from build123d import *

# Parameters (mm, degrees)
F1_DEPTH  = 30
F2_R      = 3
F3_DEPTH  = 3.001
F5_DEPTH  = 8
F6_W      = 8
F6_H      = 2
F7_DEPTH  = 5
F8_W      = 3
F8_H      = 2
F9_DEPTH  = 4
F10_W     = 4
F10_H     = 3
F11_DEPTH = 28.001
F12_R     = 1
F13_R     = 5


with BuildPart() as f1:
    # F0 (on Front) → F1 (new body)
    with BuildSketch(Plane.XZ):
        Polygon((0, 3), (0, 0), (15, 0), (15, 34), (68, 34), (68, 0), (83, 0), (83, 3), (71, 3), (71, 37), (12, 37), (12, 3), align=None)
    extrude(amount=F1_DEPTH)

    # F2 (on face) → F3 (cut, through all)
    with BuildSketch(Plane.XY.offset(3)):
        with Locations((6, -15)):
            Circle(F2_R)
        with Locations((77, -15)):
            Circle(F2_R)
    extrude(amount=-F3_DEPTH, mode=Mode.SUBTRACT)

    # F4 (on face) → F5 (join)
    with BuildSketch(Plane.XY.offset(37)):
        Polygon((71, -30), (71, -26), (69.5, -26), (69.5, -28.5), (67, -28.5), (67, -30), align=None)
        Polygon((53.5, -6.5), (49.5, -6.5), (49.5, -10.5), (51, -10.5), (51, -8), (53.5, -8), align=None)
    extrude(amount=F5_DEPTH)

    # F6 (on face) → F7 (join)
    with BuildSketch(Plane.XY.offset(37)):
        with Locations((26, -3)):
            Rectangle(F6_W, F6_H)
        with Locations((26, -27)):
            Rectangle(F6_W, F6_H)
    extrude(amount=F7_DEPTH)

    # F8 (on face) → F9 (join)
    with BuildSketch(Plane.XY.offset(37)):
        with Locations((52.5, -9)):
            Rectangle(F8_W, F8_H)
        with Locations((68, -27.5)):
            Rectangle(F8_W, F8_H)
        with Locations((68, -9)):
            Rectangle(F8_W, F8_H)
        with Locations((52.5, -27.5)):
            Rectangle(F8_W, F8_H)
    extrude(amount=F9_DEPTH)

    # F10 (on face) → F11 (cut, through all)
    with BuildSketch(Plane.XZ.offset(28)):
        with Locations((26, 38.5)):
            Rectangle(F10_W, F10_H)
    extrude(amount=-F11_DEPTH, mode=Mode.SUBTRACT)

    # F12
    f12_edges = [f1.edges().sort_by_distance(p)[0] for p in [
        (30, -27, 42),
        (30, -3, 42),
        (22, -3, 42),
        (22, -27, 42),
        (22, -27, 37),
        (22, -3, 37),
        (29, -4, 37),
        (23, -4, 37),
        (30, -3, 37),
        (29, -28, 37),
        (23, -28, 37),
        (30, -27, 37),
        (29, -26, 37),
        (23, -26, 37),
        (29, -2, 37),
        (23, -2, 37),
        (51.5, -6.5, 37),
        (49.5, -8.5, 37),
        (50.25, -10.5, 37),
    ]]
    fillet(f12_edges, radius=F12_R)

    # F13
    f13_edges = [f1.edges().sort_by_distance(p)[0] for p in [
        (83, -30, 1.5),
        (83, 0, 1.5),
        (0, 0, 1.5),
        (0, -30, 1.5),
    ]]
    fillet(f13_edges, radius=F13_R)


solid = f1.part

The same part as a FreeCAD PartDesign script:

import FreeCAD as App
import Part
import Sketcher

V = App.Vector


def edges_at(feature, points):
    """Names of the edges that pass closest to the given points."""
    edges = feature.Shape.Edges
    near = lambda p: min(range(len(edges)), key=lambda i: edges[i].distToShape(Part.Vertex(*p))[0])
    return sorted({f"Edge{near(p) + 1}" for p in points})


def add_polygon(sketch, points):
    """Adds a closed chain of lines whose ends are joined by coincident constraints."""
    first, n = sketch.GeometryCount, len(points)
    for a, b in zip(points, points[1:] + points[:1]):
        sketch.addGeometry(Part.LineSegment(App.Vector(*a, 0), App.Vector(*b, 0)), False)
    for i in range(n):
        sketch.addConstraint(Sketcher.Constraint("Coincident", first + i, 2, first + (i + 1) % n, 1))

doc = App.newDocument("Part")
body = doc.addObject("PartDesign::Body", "Body")

sketch1 = body.newObject("Sketcher::SketchObject", "Sketch")
sketch1.AttachmentSupport = (doc.getObject("XZ_Plane"), [""])
sketch1.MapMode = "FlatFace"
add_polygon(sketch1, [(0, 3), (0, 0), (15, 0), (15, 34), (68, 34), (68, 0), (83, 0), (83, 3), (71, 3), (71, 37), (12, 37), (12, 3)])
sketch1.addConstraint(Sketcher.Constraint("Vertical", 0))
sketch1.addConstraint(Sketcher.Constraint("Horizontal", 1))
sketch1.addConstraint(Sketcher.Constraint("Vertical", 2))
sketch1.addConstraint(Sketcher.Constraint("Horizontal", 3))
sketch1.addConstraint(Sketcher.Constraint("Vertical", 4))
sketch1.addConstraint(Sketcher.Constraint("Horizontal", 5))
sketch1.addConstraint(Sketcher.Constraint("Vertical", 6))
sketch1.addConstraint(Sketcher.Constraint("Horizontal", 7))
sketch1.addConstraint(Sketcher.Constraint("Vertical", 8))
sketch1.addConstraint(Sketcher.Constraint("Horizontal", 9))
sketch1.addConstraint(Sketcher.Constraint("Vertical", 10))
sketch1.addConstraint(Sketcher.Constraint("Horizontal", 11))
sketch1.addConstraint(Sketcher.Constraint("Coincident", 0, 2, -1, 1))
sketch1.addConstraint(Sketcher.Constraint("PointOnObject", 4, 2, -1))
sketch1.addConstraint(Sketcher.Constraint("Horizontal", 7, 2, 10, 2))
sketch1.addConstraint(Sketcher.Constraint("Equal", 1, 5))
sketch1.addConstraint(Sketcher.Constraint("Equal", 7, 11))
sketch1.addConstraint(Sketcher.Constraint("Equal", 4, 8))
sketch1.addConstraint(Sketcher.Constraint("DistanceX", 1, 1, 1, 2, 15.0))
sketch1.addConstraint(Sketcher.Constraint("DistanceX", 3, 1, 3, 2, 53.0))
sketch1.addConstraint(Sketcher.Constraint("DistanceX", 7, 2, 7, 1, 12.0))
sketch1.addConstraint(Sketcher.Constraint("DistanceY", 0, 2, 0, 1, 3.0))
sketch1.addConstraint(Sketcher.Constraint("DistanceY", 2, 1, 2, 2, 34.0))
pad1 = body.newObject("PartDesign::Pad", "Pad")
pad1.Profile = sketch1
pad1.Length = 30

sketch2 = body.newObject("Sketcher::SketchObject", "Sketch001")
sketch2.AttachmentSupport = (doc.getObject("XY_Plane"), [""])
sketch2.MapMode = "FlatFace"
sketch2.AttachmentOffset = App.Placement(V(0, 0, 3), App.Rotation())
sketch2.addGeometry(Part.Circle(V(6, -15, 0), V(0, 0, 1), 3), False)
sketch2.addGeometry(Part.Circle(V(77, -15, 0), V(0, 0, 1), 3), False)
sketch2.addConstraint(Sketcher.Constraint("Equal", 0, 1))
sketch2.addConstraint(Sketcher.Constraint("Horizontal", 0, 3, 1, 3))
sketch2.addConstraint(Sketcher.Constraint("Diameter", 0, 6.0))
sketch2.addConstraint(Sketcher.Constraint("DistanceX", -1, 1, 0, 3, 6.0))
sketch2.addConstraint(Sketcher.Constraint("DistanceY", 0, 3, -1, 1, 15.0))
sketch2.addConstraint(Sketcher.Constraint("DistanceX", -1, 1, 1, 3, 77.0))
pocket1 = body.newObject("PartDesign::Pocket", "Pocket")
pocket1.Profile = sketch2
pocket1.Type = "ThroughAll"

sketch3 = body.newObject("Sketcher::SketchObject", "Sketch002")
sketch3.AttachmentSupport = (doc.getObject("XY_Plane"), [""])
sketch3.MapMode = "FlatFace"
sketch3.AttachmentOffset = App.Placement(V(0, 0, 37), App.Rotation())
add_polygon(sketch3, [(71, -30), (71, -26), (69.5, -26), (69.5, -28.5), (67, -28.5), (67, -30)])
add_polygon(sketch3, [(53.5, -6.5), (49.5, -6.5), (49.5, -10.5), (51, -10.5), (51, -8), (53.5, -8)])
sketch3.addConstraint(Sketcher.Constraint("Vertical", 0))
sketch3.addConstraint(Sketcher.Constraint("Horizontal", 1))
sketch3.addConstraint(Sketcher.Constraint("Vertical", 2))
sketch3.addConstraint(Sketcher.Constraint("Horizontal", 3))
sketch3.addConstraint(Sketcher.Constraint("Vertical", 4))
sketch3.addConstraint(Sketcher.Constraint("Horizontal", 5))
sketch3.addConstraint(Sketcher.Constraint("Horizontal", 6))
sketch3.addConstraint(Sketcher.Constraint("Vertical", 7))
sketch3.addConstraint(Sketcher.Constraint("Horizontal", 8))
sketch3.addConstraint(Sketcher.Constraint("Vertical", 9))
sketch3.addConstraint(Sketcher.Constraint("Horizontal", 10))
sketch3.addConstraint(Sketcher.Constraint("Vertical", 11))
sketch3.addConstraint(Sketcher.Constraint("Equal", 5, 6))
sketch3.addConstraint(Sketcher.Constraint("Equal", 1, 8))
sketch3.addConstraint(Sketcher.Constraint("Equal", 6, 0))
sketch3.addConstraint(Sketcher.Constraint("Equal", 10, 2))
sketch3.addConstraint(Sketcher.Constraint("Equal", 0, 7))
sketch3.addConstraint(Sketcher.Constraint("Equal", 2, 9))
sketch3.addConstraint(Sketcher.Constraint("DistanceX", 5, 1, 5, 2, 4.0))
sketch3.addConstraint(Sketcher.Constraint("DistanceX", 1, 2, 1, 1, 1.5))
sketch3.addConstraint(Sketcher.Constraint("DistanceX", -1, 1, 0, 2, 71.0))
sketch3.addConstraint(Sketcher.Constraint("DistanceY", 0, 2, -1, 1, 26.0))
sketch3.addConstraint(Sketcher.Constraint("DistanceX", -1, 1, 8, 2, 51.0))
sketch3.addConstraint(Sketcher.Constraint("DistanceY", 9, 2, -1, 1, 8.0))
pad2 = body.newObject("PartDesign::Pad", "Pad001")
pad2.Profile = sketch3
pad2.Length = 8

sketch4 = body.newObject("Sketcher::SketchObject", "Sketch003")
sketch4.AttachmentSupport = (doc.getObject("XY_Plane"), [""])
sketch4.MapMode = "FlatFace"
sketch4.AttachmentOffset = App.Placement(V(0, 0, 37), App.Rotation())
add_polygon(sketch4, [(22, -2), (22, -4), (30, -4), (30, -2)])
add_polygon(sketch4, [(22, -26), (22, -28), (30, -28), (30, -26)])
sketch4.addConstraint(Sketcher.Constraint("Vertical", 0))
sketch4.addConstraint(Sketcher.Constraint("Horizontal", 1))
sketch4.addConstraint(Sketcher.Constraint("Vertical", 2))
sketch4.addConstraint(Sketcher.Constraint("Horizontal", 3))
sketch4.addConstraint(Sketcher.Constraint("Vertical", 4))
sketch4.addConstraint(Sketcher.Constraint("Horizontal", 5))
sketch4.addConstraint(Sketcher.Constraint("Vertical", 6))
sketch4.addConstraint(Sketcher.Constraint("Horizontal", 7))
sketch4.addConstraint(Sketcher.Constraint("Vertical", 3, 2, 4, 2))
sketch4.addConstraint(Sketcher.Constraint("Vertical", 2, 2, 5, 2))
sketch4.addConstraint(Sketcher.Constraint("Equal", 2, 4))
sketch4.addConstraint(Sketcher.Constraint("DistanceX", 1, 1, 1, 2, 8.0))
sketch4.addConstraint(Sketcher.Constraint("DistanceY", 0, 2, 0, 1, 2.0))
sketch4.addConstraint(Sketcher.Constraint("DistanceX", -1, 1, 0, 2, 22.0))
sketch4.addConstraint(Sketcher.Constraint("DistanceY", 0, 2, -1, 1, 4.0))
sketch4.addConstraint(Sketcher.Constraint("DistanceY", 4, 2, -1, 1, 28.0))
pad3 = body.newObject("PartDesign::Pad", "Pad002")
pad3.Profile = sketch4
pad3.Length = 5

sketch5 = body.newObject("Sketcher::SketchObject", "Sketch004")
sketch5.AttachmentSupport = (doc.getObject("XY_Plane"), [""])
sketch5.MapMode = "FlatFace"
sketch5.AttachmentOffset = App.Placement(V(0, 0, 37), App.Rotation())
add_polygon(sketch5, [(51, -8), (51, -10), (54, -10), (54, -8)])
add_polygon(sketch5, [(66.5, -26.5), (66.5, -28.5), (69.5, -28.5), (69.5, -26.5)])
add_polygon(sketch5, [(66.5, -8), (66.5, -10), (69.5, -10), (69.5, -8)])
add_polygon(sketch5, [(51, -26.5), (51, -28.5), (54, -28.5), (54, -26.5)])
sketch5.addConstraint(Sketcher.Constraint("Vertical", 0))
sketch5.addConstraint(Sketcher.Constraint("Horizontal", 1))
sketch5.addConstraint(Sketcher.Constraint("Vertical", 2))
sketch5.addConstraint(Sketcher.Constraint("Horizontal", 3))
sketch5.addConstraint(Sketcher.Constraint("Vertical", 4))
sketch5.addConstraint(Sketcher.Constraint("Horizontal", 5))
sketch5.addConstraint(Sketcher.Constraint("Vertical", 6))
sketch5.addConstraint(Sketcher.Constraint("Horizontal", 7))
sketch5.addConstraint(Sketcher.Constraint("Vertical", 8))
sketch5.addConstraint(Sketcher.Constraint("Horizontal", 9))
sketch5.addConstraint(Sketcher.Constraint("Vertical", 10))
sketch5.addConstraint(Sketcher.Constraint("Horizontal", 11))
sketch5.addConstraint(Sketcher.Constraint("Vertical", 12))
sketch5.addConstraint(Sketcher.Constraint("Horizontal", 13))
sketch5.addConstraint(Sketcher.Constraint("Vertical", 14))
sketch5.addConstraint(Sketcher.Constraint("Horizontal", 15))
sketch5.addConstraint(Sketcher.Constraint("Horizontal", 1, 2, 8, 2))
sketch5.addConstraint(Sketcher.Constraint("Horizontal", 3, 2, 10, 2))
sketch5.addConstraint(Sketcher.Constraint("Horizontal", 5, 2, 12, 2))
sketch5.addConstraint(Sketcher.Constraint("Horizontal", 7, 2, 14, 2))
sketch5.addConstraint(Sketcher.Constraint("Vertical", 7, 2, 8, 2))
sketch5.addConstraint(Sketcher.Constraint("Vertical", 6, 2, 9, 2))
sketch5.addConstraint(Sketcher.Constraint("Vertical", 3, 2, 12, 2))
sketch5.addConstraint(Sketcher.Constraint("Vertical", 2, 2, 13, 2))
sketch5.addConstraint(Sketcher.Constraint("Equal", 3, 5))
sketch5.addConstraint(Sketcher.Constraint("Equal", 2, 4))
sketch5.addConstraint(Sketcher.Constraint("DistanceX", 1, 1, 1, 2, 3.0))
sketch5.addConstraint(Sketcher.Constraint("DistanceY", 0, 2, 0, 1, 2.0))
sketch5.addConstraint(Sketcher.Constraint("DistanceX", -1, 1, 0, 2, 51.0))
sketch5.addConstraint(Sketcher.Constraint("DistanceY", 0, 2, -1, 1, 10.0))
sketch5.addConstraint(Sketcher.Constraint("DistanceX", -1, 1, 4, 2, 66.5))
sketch5.addConstraint(Sketcher.Constraint("DistanceY", 4, 2, -1, 1, 28.5))
pad4 = body.newObject("PartDesign::Pad", "Pad003")
pad4.Profile = sketch5
pad4.Length = 4

sketch6 = body.newObject("Sketcher::SketchObject", "Sketch005")
sketch6.AttachmentSupport = (doc.getObject("XZ_Plane"), [""])
sketch6.MapMode = "FlatFace"
sketch6.AttachmentOffset = App.Placement(V(0, 0, 28), App.Rotation())
add_polygon(sketch6, [(24, 40), (24, 37), (28, 37), (28, 40)])
sketch6.addConstraint(Sketcher.Constraint("Vertical", 0))
sketch6.addConstraint(Sketcher.Constraint("Horizontal", 1))
sketch6.addConstraint(Sketcher.Constraint("Vertical", 2))
sketch6.addConstraint(Sketcher.Constraint("Horizontal", 3))
sketch6.addConstraint(Sketcher.Constraint("DistanceX", 1, 1, 1, 2, 4.0))
sketch6.addConstraint(Sketcher.Constraint("DistanceY", 0, 2, 0, 1, 3.0))
sketch6.addConstraint(Sketcher.Constraint("DistanceX", -1, 1, 0, 2, 24.0))
sketch6.addConstraint(Sketcher.Constraint("DistanceY", -1, 1, 0, 2, 37.0))
pocket2 = body.newObject("PartDesign::Pocket", "Pocket001")
pocket2.Profile = sketch6
pocket2.Type = "ThroughAll"
doc.recompute()

fillet = body.newObject("PartDesign::Fillet", "Fillet")
fillet.Base = (pocket2, edges_at(pocket2, [
    (30, -27, 42),
    (30, -3, 42),
    (22, -3, 42),
    (22, -27, 42),
    (22, -27, 37),
    (22, -3, 37),
    (29, -4, 37),
    (23, -4, 37),
    (30, -3, 37),
    (29, -28, 37),
    (23, -28, 37),
    (30, -27, 37),
    (29, -26, 37),
    (23, -26, 37),
    (29, -2, 37),
    (23, -2, 37),
    (51.5, -6.5, 37),
    (49.5, -8.5, 37),
    (50.25, -10.5, 37),
]))
fillet.Radius = 1
doc.recompute()

fillet2 = body.newObject("PartDesign::Fillet", "Fillet001")
fillet2.Base = (fillet, edges_at(fillet, [
    (83, -30, 1.5),
    (83, 0, 1.5),
    (0, 0, 1.5),
    (0, -30, 1.5),
]))
fillet2.Radius = 5

doc.recompute()
